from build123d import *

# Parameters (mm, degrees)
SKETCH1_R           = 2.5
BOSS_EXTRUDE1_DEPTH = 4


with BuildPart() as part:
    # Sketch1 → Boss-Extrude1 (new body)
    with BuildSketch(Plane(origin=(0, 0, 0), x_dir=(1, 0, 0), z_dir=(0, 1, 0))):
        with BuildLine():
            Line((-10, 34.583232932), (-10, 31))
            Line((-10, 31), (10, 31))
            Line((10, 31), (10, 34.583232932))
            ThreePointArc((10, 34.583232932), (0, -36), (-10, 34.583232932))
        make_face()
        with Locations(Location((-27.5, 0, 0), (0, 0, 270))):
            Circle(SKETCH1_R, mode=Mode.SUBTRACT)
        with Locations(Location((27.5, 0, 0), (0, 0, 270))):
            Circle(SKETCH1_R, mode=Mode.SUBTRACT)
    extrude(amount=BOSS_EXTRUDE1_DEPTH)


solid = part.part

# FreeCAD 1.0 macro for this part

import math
import FreeCAD as App
import Part
import Sketcher

doc = App.newDocument("Part")
params = doc.addObject("Spreadsheet::Sheet", "Params")
for row, (alias, value) in enumerate([
    ("sketch1_diameter", "5 mm"),
    ("sketch1_radius", "36 mm"),
    ("sketch1_width", "20 mm"),
    ("pad1_length", "4 mm"),
], start=1):
    params.set(f"A{row}", alias)
    params.set(f"B{row}", "=" + value)
    params.setAlias(f"B{row}", alias)

body = doc.addObject("PartDesign::Body", "Body")

# Sketch on XZ plane
sketch1 = doc.addObject("Sketcher::SketchObject", "Sketch")
body.addObject(sketch1)
sketch1.AttachmentSupport = (doc.XZ_Plane, [""])
sketch1.MapMode = "FlatFace"
sketch1.addGeometry(Part.LineSegment(App.Vector(-10, -31, 0), App.Vector(-10, -34.6, 0)), False)
sketch1.addGeometry(Part.ArcOfCircle(Part.Circle(App.Vector(0, 0, 0), App.Vector(0, 0, 1), 36), math.radians(-74), math.radians(254)), False)
sketch1.addGeometry(Part.LineSegment(App.Vector(10, -34.6, 0), App.Vector(10, -31, 0)), False)
sketch1.addGeometry(Part.LineSegment(App.Vector(10, -31, 0), App.Vector(-10, -31, 0)), False)
sketch1.addGeometry(Part.Circle(App.Vector(27.5, 0, 0), App.Vector(0, 0, 1), 2.5), False)
sketch1.addGeometry(Part.Circle(App.Vector(-27.5, 0, 0), App.Vector(0, 0, 1), 2.5), False)
sketch1.addConstraint(Sketcher.Constraint("Coincident", 0, 2, 1, 2))
sketch1.addConstraint(Sketcher.Constraint("Coincident", 1, 1, 2, 1))
sketch1.addConstraint(Sketcher.Constraint("Coincident", 2, 2, 3, 1))
sketch1.addConstraint(Sketcher.Constraint("Coincident", 3, 2, 0, 1))
sketch1.addConstraint(Sketcher.Constraint("Vertical", 0))
sketch1.addConstraint(Sketcher.Constraint("Vertical", 2))
sketch1.addConstraint(Sketcher.Constraint("Horizontal", 3))
sketch1.addConstraint(Sketcher.Constraint("Coincident", 1, 3, -1, 1))
sketch1.addConstraint(Sketcher.Constraint("Equal", 4, 5))
sketch1.addConstraint(Sketcher.Constraint("Symmetric", 4, 3, 5, 3, -1, 1))
sketch1.addConstraint(Sketcher.Constraint("PointOnObject", 4, 3, -1))
sketch1.addConstraint(Sketcher.Constraint("Horizontal", 0, 2, 1, 1))
sketch1.addConstraint(Sketcher.Constraint("Diameter", 4, 5.0))
sketch1.addConstraint(Sketcher.Constraint("Radius", 1, 36.0))
sketch1.addConstraint(Sketcher.Constraint("DistanceX", 3, 2, 3, 1, 20.0))
sketch1.addConstraint(Sketcher.Constraint("DistanceY", 2, 2, -1, 1, 31.0))
sketch1.addConstraint(Sketcher.Constraint("DistanceX", 5, 3, 4, 3, 55.0))
sketch1.setExpression("Constraints[12]", "Params.sketch1_diameter")
sketch1.setExpression("Constraints[13]", "Params.sketch1_radius")
sketch1.setExpression("Constraints[14]", "Params.sketch1_width")
pad1 = doc.addObject("PartDesign::Pad", "Pad")
body.addObject(pad1)
pad1.Profile = sketch1
pad1.setExpression("Length", "Params.pad1_length")
pad1.Reversed = True

doc.recompute()
